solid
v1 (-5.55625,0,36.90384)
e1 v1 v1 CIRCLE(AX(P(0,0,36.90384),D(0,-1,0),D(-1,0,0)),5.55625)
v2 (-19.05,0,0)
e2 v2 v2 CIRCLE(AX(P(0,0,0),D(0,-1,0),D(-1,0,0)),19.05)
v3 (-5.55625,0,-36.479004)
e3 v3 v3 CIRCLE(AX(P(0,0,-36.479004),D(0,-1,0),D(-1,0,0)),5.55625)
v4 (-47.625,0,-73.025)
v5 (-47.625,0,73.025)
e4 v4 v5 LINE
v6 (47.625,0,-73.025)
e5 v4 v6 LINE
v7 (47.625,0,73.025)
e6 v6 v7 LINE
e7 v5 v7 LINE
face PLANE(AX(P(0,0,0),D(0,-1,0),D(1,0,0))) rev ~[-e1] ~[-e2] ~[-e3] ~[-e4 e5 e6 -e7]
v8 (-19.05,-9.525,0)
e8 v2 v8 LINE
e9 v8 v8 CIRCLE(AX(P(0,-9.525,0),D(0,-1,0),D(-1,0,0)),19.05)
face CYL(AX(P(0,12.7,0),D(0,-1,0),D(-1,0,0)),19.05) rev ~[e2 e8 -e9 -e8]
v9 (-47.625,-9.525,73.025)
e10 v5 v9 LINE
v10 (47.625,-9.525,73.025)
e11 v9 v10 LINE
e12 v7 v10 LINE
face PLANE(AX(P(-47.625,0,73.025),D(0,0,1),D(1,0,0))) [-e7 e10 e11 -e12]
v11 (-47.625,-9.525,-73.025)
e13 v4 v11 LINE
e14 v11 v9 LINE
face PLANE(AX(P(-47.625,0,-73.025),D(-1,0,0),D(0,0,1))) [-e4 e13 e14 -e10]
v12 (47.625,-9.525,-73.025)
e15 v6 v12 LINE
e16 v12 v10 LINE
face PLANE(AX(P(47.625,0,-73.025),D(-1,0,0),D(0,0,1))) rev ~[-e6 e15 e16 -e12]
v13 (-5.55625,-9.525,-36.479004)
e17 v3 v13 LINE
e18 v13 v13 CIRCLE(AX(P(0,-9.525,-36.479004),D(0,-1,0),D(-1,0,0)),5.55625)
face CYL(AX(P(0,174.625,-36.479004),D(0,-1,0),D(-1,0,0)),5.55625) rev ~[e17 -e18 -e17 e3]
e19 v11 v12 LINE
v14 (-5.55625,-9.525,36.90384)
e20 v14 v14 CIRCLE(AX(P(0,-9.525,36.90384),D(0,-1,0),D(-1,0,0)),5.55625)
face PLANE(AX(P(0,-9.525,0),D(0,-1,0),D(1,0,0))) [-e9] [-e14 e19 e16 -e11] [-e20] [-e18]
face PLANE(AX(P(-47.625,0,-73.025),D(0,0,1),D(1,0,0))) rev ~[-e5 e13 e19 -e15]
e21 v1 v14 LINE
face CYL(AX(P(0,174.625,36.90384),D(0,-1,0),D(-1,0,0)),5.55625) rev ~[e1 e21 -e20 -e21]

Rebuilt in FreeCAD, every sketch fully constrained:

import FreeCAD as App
import Part
import Sketcher
from FreeCAD import Vector
Q = App.Units.Quantity

doc = App.newDocument("Part")
params = doc.addObject("Spreadsheet::Sheet", "Params")
for row, (alias, value) in enumerate([
    ("sketch1_width", "3.75 in"),
    ("sketch1_height", "5.75 in"),
    ("pad1_length", "0.375 in"),
    ("sketch2_diameter", "1.5 in"),
    ("hole_diameter", "1.5 in"),
    ("hole_depth", "0.5 in"),
    ("sketch3_diameter", "0.4375 in"),
    ("hole2_diameter", "0.4375 in"),
    ("sketch4_diameter", "0.4375 in"),
    ("hole3_diameter", "0.4375 in"),
], start=1):
    params.set(f"A{row}", alias)
    params.set(f"B{row}", "=" + value)
    params.setAlias(f"B{row}", alias)

body = doc.addObject("PartDesign::Body", "Body")

# Sketch on XZ plane
sketch1 = body.newObject("Sketcher::SketchObject", "Sketch")
sketch1.AttachmentSupport = (doc.getObject("XZ_Plane"), [""])
sketch1.MapMode = "FlatFace"
sketch1.addGeometry([
    Part.LineSegment(Vector(-48, 73, 0), Vector(-48, -73, 0)),
    Part.LineSegment(Vector(-48, -73, 0), Vector(48, -73, 0)),
    Part.LineSegment(Vector(48, -73, 0), Vector(48, 73, 0)),
    Part.LineSegment(Vector(48, 73, 0), Vector(-48, 73, 0)),
], False)
sketch1.addConstraint([
    Sketcher.Constraint("Coincident", 0, 2, 1, 1),
    Sketcher.Constraint("Coincident", 1, 2, 2, 1),
    Sketcher.Constraint("Coincident", 2, 2, 3, 1),
    Sketcher.Constraint("Coincident", 3, 2, 0, 1),
    Sketcher.Constraint("Vertical", 0),
    Sketcher.Constraint("Horizontal", 1),
    Sketcher.Constraint("Vertical", 2),
    Sketcher.Constraint("Horizontal", 3),
    Sketcher.Constraint("Symmetric", 0, 2, 2, 2, -1, 1),
    Sketcher.Constraint("DistanceX", 1, 1, 1, 2, Q("3.75 in")),
    Sketcher.Constraint("DistanceY", 0, 2, 0, 1, Q("5.75 in")),
])
sketch1.setExpression("Constraints[9]", "Params.sketch1_width")
sketch1.setExpression("Constraints[10]", "Params.sketch1_height")
pad1 = body.newObject("PartDesign::Pad", "Pad")
pad1.Profile = sketch1
pad1.setExpression("Length", "Params.pad1_length")

# Sketch on XZ plane
sketch2 = body.newObject("Sketcher::SketchObject", "Sketch001")
sketch2.AttachmentSupport = (doc.getObject("XZ_Plane"), [""])
sketch2.MapMode = "FlatFace"
sketch2.addGeometry(Part.Circle(Vector(0, 0, 0), Vector(0, 0, 1), 19), False)
sketch2.addConstraint([
    Sketcher.Constraint("Coincident", 0, 3, -1, 1),
    Sketcher.Constraint("Diameter", 0, Q("1.5 in")),
])
sketch2.setExpression("Constraints[1]", "Params.sketch2_diameter")
doc.recompute()
hole = body.newObject("PartDesign::Hole", "Hole")
hole.Profile = sketch2
hole.ThreadType = "None"
hole.setExpression("Diameter", "Params.hole_diameter")
hole.DepthType = "Dimension"
hole.setExpression("Depth", "Params.hole_depth")
hole.DrillPoint = "Angled"
hole.DrillPointAngle = 118
hole.Reversed = True

# Sketch on XZ plane
sketch3 = body.newObject("Sketcher::SketchObject", "Sketch002")
sketch3.AttachmentSupport = (doc.getObject("XZ_Plane"), [""])
sketch3.MapMode = "FlatFace"
sketch3.addGeometry(Part.Circle(Vector(0, 37, 0), Vector(0, 0, 1), 6), False)
sketch3.addConstraint([
    Sketcher.Constraint("PointOnObject", 0, 3, -2),
    Sketcher.Constraint("Diameter", 0, Q("0.4375 in")),
    Sketcher.Constraint("DistanceY", -1, 1, 0, 3, Q("36.90384 mm")),
])
sketch3.setExpression("Constraints[1]", "Params.sketch3_diameter")
doc.recompute()
hole2 = body.newObject("PartDesign::Hole", "Hole001")
hole2.Profile = sketch3
hole2.ThreadType = "None"
hole2.setExpression("Diameter", "Params.hole2_diameter")
hole2.DepthType = "ThroughAll"
hole2.Reversed = True

# Sketch on XZ plane
sketch4 = body.newObject("Sketcher::SketchObject", "Sketch003")
sketch4.AttachmentSupport = (doc.getObject("XZ_Plane"), [""])
sketch4.MapMode = "FlatFace"
sketch4.addGeometry(Part.Circle(Vector(0, -36, 0), Vector(0, 0, 1), 6), False)
sketch4.addConstraint([
    Sketcher.Constraint("PointOnObject", 0, 3, -2),
    Sketcher.Constraint("Diameter", 0, Q("0.4375 in")),
    Sketcher.Constraint("DistanceY", 0, 3, -1, 1, Q("36.479004 mm")),
])
sketch4.setExpression("Constraints[1]", "Params.sketch4_diameter")
doc.recompute()
hole3 = body.newObject("PartDesign::Hole", "Hole002")
hole3.Profile = sketch4
hole3.ThreadType = "None"
hole3.setExpression("Diameter", "Params.hole3_diameter")
hole3.DepthType = "ThroughAll"
hole3.Reversed = True

doc.recompute()
